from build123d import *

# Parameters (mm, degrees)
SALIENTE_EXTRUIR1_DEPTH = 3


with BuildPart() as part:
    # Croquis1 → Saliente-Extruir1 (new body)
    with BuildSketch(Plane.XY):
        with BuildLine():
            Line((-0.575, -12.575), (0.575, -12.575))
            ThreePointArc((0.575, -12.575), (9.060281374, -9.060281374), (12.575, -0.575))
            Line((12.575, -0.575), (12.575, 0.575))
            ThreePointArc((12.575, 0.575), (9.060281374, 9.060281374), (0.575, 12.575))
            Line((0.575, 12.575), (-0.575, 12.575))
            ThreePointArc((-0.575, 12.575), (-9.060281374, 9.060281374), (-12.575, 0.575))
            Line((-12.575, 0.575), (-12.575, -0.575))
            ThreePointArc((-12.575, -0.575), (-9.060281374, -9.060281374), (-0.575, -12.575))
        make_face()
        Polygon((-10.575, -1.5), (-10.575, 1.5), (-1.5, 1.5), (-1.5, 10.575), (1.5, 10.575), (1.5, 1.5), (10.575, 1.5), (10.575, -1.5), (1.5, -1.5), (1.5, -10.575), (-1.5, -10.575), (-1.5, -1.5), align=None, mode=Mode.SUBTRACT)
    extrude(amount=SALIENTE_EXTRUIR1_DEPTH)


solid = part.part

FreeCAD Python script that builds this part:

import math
import FreeCAD as App
import Part
import Sketcher

doc = App.newDocument("Part")
body = doc.addObject("PartDesign::Body", "Body")

# Sketch on XY plane
sketch1 = body.newObject("Sketcher::SketchObject", "Sketch")
sketch1.AttachmentSupport = (doc.getObject("XY_Plane"), [""])
sketch1.MapMode = "FlatFace"
sketch1.addGeometry([
    Part.LineSegment(App.Vector(-0.575, -12.575, 0), App.Vector(0.575, -12.575, 0)),  # 0
    Part.ArcOfCircle(Part.Circle(App.Vector(0.575, -0.575, 0), App.Vector(0, 0, 1), 12), math.radians(-90), math.radians(0)),  # 1
    Part.LineSegment(App.Vector(12.575, -0.575, 0), App.Vector(12.575, 0.575, 0)),  # 2
    Part.ArcOfCircle(Part.Circle(App.Vector(0.575, 0.575, 0), App.Vector(0, 0, 1), 12), math.radians(0), math.radians(90)),  # 3
    Part.LineSegment(App.Vector(0.575, 12.575, 0), App.Vector(-0.575, 12.575, 0)),  # 4
    Part.ArcOfCircle(Part.Circle(App.Vector(-0.575, 0.575, 0), App.Vector(0, 0, 1), 12), math.radians(90), math.radians(180)),  # 5
    Part.LineSegment(App.Vector(-12.575, 0.575, 0), App.Vector(-12.575, -0.575, 0)),  # 6
    Part.ArcOfCircle(Part.Circle(App.Vector(-0.575, -0.575, 0), App.Vector(0, 0, 1), 12), math.radians(-180), math.radians(-90)),  # 7
    Part.LineSegment(App.Vector(-1.5, -1.5, 0), App.Vector(-10.575, -1.5, 0)),  # 8
    Part.LineSegment(App.Vector(-10.575, -1.5, 0), App.Vector(-10.575, 1.5, 0)),  # 9
    Part.LineSegment(App.Vector(-10.575, 1.5, 0), App.Vector(-1.5, 1.5, 0)),  # 10
    Part.LineSegment(App.Vector(-1.5, 1.5, 0), App.Vector(-1.5, 10.575, 0)),  # 11
    Part.LineSegment(App.Vector(-1.5, 10.575, 0), App.Vector(1.5, 10.575, 0)),  # 12
    Part.LineSegment(App.Vector(1.5, 10.575, 0), App.Vector(1.5, 1.5, 0)),  # 13
    Part.LineSegment(App.Vector(1.5, 1.5, 0), App.Vector(10.575, 1.5, 0)),  # 14
    Part.LineSegment(App.Vector(10.575, 1.5, 0), App.Vector(10.575, -1.5, 0)),  # 15
    Part.LineSegment(App.Vector(10.575, -1.5, 0), App.Vector(1.5, -1.5, 0)),  # 16
    Part.LineSegment(App.Vector(1.5, -1.5, 0), App.Vector(1.5, -10.575, 0)),  # 17
    Part.LineSegment(App.Vector(1.5, -10.575, 0), App.Vector(-1.5, -10.575, 0)),  # 18
    Part.LineSegment(App.Vector(-1.5, -10.575, 0), App.Vector(-1.5, -1.5, 0)),  # 19
], False)
sketch1.addConstraint([
    Sketcher.Constraint("Tangent", 0, 2, 1, 1),
    Sketcher.Constraint("Tangent", 1, 2, 2, 1),
    Sketcher.Constraint("Tangent", 2, 2, 3, 1),
    Sketcher.Constraint("Tangent", 3, 2, 4, 1),
    Sketcher.Constraint("Tangent", 4, 2, 5, 1),
    Sketcher.Constraint("Tangent", 5, 2, 6, 1),
    Sketcher.Constraint("Tangent", 6, 2, 7, 1),
    Sketcher.Constraint("Tangent", 7, 2, 0, 1),
    Sketcher.Constraint("Coincident", 8, 2, 9, 1),
    Sketcher.Constraint("Coincident", 9, 2, 10, 1),
    Sketcher.Constraint("Coincident", 10, 2, 11, 1),
    Sketcher.Constraint("Coincident", 11, 2, 12, 1),
    Sketcher.Constraint("Coincident", 12, 2, 13, 1),
    Sketcher.Constraint("Coincident", 13, 2, 14, 1),
    Sketcher.Constraint("Coincident", 14, 2, 15, 1),
    Sketcher.Constraint("Coincident", 15, 2, 16, 1),
    Sketcher.Constraint("Coincident", 16, 2, 17, 1),
    Sketcher.Constraint("Coincident", 17, 2, 18, 1),
    Sketcher.Constraint("Coincident", 18, 2, 19, 1),
    Sketcher.Constraint("Coincident", 19, 2, 8, 1),
    Sketcher.Constraint("Horizontal", 0),
    Sketcher.Constraint("Vertical", 2),
    Sketcher.Constraint("Horizontal", 4),
    Sketcher.Constraint("Vertical", 6),
    Sketcher.Constraint("Horizontal", 8),
    Sketcher.Constraint("Vertical", 9),
    Sketcher.Constraint("Horizontal", 10),
    Sketcher.Constraint("Vertical", 11),
    Sketcher.Constraint("Horizontal", 12),
    Sketcher.Constraint("Vertical", 13),
    Sketcher.Constraint("Horizontal", 14),
    Sketcher.Constraint("Vertical", 15),
    Sketcher.Constraint("Horizontal", 16),
    Sketcher.Constraint("Vertical", 17),
    Sketcher.Constraint("Horizontal", 18),
    Sketcher.Constraint("Vertical", 19),
    Sketcher.Constraint("Equal", 1, 3),
    Sketcher.Constraint("Equal", 3, 5),
    Sketcher.Constraint("Equal", 5, 7),
    Sketcher.Constraint("Symmetric", 1, 3, 5, 3, -1, 1),
    Sketcher.Constraint("Symmetric", 8, 2, 14, 2, -1, 1),
    Sketcher.Constraint("Symmetric", 10, 2, 16, 2, -1, 1),
    Sketcher.Constraint("Symmetric", 12, 2, 18, 2, -1, 1),
    Sketcher.Constraint("Symmetric", 10, 2, 13, 2, -2),
    Sketcher.Constraint("Equal", 4, 2),
    Sketcher.Constraint("Equal", 18, 9),
    Sketcher.Constraint("Equal", 16, 11),
    Sketcher.Constraint("Radius", 1, 12.0),
    Sketcher.Constraint("DistanceX", 12, 1, 12, 2, 3.0),
    Sketcher.Constraint("DistanceX", 6, 2, 8, 2, 2.0),
    Sketcher.Constraint("DistanceX", 0, 1, 0, 2, 1.15),
])
pad1 = body.newObject("PartDesign::Pad", "Pad")
pad1.Profile = sketch1
pad1.Length = 3

doc.recompute()
